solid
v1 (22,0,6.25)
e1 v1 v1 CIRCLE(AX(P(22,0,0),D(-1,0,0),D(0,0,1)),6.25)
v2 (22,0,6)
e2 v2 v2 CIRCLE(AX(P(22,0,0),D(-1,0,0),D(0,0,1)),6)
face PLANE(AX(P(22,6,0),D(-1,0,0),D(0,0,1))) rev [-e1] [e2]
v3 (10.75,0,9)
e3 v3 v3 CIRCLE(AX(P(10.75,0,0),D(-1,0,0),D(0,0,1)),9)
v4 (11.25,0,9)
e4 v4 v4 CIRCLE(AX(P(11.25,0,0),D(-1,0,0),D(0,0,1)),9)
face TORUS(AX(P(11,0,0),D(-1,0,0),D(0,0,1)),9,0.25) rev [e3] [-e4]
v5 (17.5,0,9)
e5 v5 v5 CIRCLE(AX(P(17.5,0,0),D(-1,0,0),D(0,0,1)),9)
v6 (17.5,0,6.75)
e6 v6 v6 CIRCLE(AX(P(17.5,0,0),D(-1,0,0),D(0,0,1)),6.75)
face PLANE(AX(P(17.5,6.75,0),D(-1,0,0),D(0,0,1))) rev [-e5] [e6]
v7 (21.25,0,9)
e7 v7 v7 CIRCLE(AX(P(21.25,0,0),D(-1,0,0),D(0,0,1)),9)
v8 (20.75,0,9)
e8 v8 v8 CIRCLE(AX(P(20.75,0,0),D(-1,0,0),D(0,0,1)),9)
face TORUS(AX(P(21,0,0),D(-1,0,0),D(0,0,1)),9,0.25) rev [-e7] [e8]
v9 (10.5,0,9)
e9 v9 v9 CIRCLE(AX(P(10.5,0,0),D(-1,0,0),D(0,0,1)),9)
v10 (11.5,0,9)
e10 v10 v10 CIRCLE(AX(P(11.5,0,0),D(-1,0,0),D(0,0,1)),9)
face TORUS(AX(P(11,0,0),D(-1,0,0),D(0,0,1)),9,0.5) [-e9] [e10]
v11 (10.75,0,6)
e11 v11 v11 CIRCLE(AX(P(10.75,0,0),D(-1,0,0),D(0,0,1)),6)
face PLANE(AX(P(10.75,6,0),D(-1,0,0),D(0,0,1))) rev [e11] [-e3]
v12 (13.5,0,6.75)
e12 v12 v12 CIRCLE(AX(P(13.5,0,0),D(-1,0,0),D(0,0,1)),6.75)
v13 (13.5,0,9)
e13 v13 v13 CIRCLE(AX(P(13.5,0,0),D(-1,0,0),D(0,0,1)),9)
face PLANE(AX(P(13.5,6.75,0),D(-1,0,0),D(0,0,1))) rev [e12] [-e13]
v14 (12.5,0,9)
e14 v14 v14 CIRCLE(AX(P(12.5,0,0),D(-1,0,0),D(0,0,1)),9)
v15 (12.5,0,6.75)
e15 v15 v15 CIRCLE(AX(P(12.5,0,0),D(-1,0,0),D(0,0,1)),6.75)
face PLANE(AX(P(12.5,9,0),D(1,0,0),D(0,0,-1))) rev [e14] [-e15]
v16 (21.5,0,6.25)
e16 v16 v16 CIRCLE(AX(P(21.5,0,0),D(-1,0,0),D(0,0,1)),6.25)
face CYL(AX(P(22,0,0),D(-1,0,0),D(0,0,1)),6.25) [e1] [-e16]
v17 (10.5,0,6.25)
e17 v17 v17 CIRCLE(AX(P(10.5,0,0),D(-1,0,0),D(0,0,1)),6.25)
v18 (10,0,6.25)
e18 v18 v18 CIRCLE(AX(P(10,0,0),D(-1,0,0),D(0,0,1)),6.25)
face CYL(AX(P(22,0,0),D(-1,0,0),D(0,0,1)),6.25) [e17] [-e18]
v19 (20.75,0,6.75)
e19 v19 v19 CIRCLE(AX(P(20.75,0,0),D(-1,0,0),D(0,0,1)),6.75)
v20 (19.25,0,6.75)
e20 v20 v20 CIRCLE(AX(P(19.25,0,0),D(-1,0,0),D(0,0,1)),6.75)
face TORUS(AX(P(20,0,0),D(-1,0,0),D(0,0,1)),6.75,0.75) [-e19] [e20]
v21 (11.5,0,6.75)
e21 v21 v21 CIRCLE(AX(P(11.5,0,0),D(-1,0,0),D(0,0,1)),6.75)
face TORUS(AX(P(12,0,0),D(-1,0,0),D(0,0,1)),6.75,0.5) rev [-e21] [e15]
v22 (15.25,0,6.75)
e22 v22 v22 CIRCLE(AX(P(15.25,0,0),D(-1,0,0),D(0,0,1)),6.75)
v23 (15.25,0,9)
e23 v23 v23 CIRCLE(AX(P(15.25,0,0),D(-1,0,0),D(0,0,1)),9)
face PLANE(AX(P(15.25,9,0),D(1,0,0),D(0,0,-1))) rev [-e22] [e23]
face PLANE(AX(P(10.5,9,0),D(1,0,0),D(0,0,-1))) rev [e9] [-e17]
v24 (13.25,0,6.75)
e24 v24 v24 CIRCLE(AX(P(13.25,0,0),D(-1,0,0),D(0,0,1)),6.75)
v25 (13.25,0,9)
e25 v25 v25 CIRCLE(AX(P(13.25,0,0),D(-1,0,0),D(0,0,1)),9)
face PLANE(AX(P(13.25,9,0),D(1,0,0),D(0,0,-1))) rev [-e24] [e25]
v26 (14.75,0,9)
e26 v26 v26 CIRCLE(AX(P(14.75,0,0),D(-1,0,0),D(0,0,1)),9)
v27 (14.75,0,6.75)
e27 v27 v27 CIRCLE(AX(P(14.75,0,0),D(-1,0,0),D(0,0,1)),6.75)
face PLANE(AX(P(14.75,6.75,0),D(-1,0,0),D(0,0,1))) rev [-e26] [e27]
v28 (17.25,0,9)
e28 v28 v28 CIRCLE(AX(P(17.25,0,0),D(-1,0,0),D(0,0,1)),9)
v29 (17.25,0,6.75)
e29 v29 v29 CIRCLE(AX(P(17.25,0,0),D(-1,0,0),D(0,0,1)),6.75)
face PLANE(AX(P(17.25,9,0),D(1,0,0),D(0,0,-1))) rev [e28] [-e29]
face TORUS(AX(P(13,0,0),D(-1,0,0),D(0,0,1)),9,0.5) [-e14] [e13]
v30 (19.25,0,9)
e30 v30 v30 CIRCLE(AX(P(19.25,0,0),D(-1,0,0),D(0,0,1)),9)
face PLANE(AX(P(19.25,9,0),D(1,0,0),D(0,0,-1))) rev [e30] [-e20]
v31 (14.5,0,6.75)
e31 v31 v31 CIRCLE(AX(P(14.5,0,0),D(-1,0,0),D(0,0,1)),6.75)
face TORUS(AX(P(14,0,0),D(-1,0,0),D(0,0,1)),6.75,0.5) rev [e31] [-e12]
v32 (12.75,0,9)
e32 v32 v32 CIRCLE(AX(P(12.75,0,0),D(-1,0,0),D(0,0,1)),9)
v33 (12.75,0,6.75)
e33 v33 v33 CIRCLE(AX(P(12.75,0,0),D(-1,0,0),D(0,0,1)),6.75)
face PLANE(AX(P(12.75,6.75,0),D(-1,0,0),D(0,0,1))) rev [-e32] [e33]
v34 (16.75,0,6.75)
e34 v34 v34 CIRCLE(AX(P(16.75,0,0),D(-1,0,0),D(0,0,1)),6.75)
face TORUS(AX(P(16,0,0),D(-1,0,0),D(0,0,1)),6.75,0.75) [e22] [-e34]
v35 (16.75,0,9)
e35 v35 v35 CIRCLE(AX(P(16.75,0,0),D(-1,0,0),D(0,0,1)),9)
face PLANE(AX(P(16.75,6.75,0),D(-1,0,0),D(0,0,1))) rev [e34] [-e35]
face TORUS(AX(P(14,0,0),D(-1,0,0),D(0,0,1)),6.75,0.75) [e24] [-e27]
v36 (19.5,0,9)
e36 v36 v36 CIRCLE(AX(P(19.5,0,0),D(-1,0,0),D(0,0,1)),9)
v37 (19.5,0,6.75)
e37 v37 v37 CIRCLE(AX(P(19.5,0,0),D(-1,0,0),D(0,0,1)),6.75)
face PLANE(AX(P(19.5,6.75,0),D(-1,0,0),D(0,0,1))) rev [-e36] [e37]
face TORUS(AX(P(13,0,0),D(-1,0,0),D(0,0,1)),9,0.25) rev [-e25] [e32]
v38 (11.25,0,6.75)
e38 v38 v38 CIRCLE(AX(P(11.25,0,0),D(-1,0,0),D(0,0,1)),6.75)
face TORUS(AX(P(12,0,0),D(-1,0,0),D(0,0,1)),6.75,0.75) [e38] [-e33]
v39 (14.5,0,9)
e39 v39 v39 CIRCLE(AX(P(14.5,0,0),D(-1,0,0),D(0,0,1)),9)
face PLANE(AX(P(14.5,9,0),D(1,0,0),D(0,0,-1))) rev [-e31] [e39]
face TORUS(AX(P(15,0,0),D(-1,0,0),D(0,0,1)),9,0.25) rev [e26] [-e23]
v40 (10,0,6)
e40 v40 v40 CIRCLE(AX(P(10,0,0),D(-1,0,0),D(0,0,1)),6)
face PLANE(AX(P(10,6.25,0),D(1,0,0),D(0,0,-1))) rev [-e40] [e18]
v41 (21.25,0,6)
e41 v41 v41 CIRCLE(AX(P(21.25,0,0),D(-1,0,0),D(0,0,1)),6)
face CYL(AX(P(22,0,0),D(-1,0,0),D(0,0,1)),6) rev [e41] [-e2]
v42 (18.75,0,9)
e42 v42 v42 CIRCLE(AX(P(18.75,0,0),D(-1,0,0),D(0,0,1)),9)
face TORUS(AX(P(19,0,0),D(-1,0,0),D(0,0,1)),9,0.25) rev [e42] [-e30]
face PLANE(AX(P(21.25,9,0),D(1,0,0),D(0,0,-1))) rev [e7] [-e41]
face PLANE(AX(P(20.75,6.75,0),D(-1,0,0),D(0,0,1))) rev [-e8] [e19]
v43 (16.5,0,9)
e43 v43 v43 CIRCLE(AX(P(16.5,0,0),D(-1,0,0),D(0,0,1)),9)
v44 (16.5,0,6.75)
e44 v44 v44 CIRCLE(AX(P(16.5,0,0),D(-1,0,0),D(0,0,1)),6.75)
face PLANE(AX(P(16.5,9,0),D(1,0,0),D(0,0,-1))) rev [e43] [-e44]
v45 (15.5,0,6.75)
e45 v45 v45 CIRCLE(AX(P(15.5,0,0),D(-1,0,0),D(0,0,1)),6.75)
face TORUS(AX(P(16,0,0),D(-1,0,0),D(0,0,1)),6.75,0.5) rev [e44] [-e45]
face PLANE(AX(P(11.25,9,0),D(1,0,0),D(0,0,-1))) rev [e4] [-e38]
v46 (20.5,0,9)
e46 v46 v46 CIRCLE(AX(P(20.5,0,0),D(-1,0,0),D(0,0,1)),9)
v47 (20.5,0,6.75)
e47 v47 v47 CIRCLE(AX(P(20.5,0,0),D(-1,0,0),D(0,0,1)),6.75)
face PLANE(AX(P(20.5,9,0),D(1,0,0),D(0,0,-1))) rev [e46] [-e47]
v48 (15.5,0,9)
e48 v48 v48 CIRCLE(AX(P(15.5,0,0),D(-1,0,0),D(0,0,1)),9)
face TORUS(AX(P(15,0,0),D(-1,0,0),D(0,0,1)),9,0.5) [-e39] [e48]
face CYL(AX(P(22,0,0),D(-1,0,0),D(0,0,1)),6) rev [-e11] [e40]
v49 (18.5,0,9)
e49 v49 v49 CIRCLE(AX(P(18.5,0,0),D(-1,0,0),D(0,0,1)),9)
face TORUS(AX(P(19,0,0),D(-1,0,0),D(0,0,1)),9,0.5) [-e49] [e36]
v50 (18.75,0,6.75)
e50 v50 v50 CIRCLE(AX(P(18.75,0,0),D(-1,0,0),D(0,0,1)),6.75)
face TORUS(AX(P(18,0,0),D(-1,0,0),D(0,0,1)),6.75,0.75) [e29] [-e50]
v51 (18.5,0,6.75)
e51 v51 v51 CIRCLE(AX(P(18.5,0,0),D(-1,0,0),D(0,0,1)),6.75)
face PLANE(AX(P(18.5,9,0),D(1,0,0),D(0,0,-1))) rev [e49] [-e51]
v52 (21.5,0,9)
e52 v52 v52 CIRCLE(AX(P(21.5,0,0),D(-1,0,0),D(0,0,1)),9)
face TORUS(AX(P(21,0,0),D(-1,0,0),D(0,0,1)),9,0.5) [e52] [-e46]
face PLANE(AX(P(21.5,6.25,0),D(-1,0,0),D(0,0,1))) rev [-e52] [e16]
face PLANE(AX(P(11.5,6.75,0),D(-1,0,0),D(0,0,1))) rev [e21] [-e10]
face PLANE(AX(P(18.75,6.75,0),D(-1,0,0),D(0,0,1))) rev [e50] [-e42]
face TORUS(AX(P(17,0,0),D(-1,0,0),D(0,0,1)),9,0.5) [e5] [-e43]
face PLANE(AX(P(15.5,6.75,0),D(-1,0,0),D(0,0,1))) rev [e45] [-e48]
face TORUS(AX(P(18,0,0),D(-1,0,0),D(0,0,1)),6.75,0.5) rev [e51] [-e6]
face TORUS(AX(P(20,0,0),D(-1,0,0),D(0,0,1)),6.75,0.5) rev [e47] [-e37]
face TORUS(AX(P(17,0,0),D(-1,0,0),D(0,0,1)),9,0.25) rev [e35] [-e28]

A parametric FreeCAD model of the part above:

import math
import FreeCAD as App
import Part
import Sketcher

V = App.Vector

doc = App.newDocument("Part")
body = doc.addObject("PartDesign::Body", "Body")

sketch1 = body.newObject("Sketcher::SketchObject", "Sketch")
sketch1.AttachmentSupport = (doc.getObject("XY_Plane"), [""])
sketch1.MapMode = "FlatFace"
sketch1.addGeometry(Part.LineSegment(V(10, 6.25, 0), V(10, 6, 0)), False)
sketch1.addGeometry(Part.LineSegment(V(10, 6, 0), V(10.75, 6, 0)), False)
sketch1.addGeometry(Part.LineSegment(V(10.75, 6, 0), V(10.75, 9, 0)), False)
sketch1.addGeometry(Part.ArcOfCircle(Part.Circle(V(11, 9, 0), V(0, 0, 1), 0.25), math.radians(0), math.radians(180)), False)
sketch1.addGeometry(Part.LineSegment(V(11.25, 9, 0), V(11.25, 6.75, 0)), False)
sketch1.addGeometry(Part.ArcOfCircle(Part.Circle(V(12, 6.75, 0), V(0, 0, 1), 0.75), math.radians(180), math.radians(360)), False)
sketch1.addGeometry(Part.LineSegment(V(12.75, 6.75, 0), V(12.75, 9, 0)), False)
sketch1.addGeometry(Part.ArcOfCircle(Part.Circle(V(13, 9, 0), V(0, 0, 1), 0.25), math.radians(0), math.radians(180)), False)
sketch1.addGeometry(Part.LineSegment(V(13.25, 9, 0), V(13.25, 6.75, 0)), False)
sketch1.addGeometry(Part.ArcOfCircle(Part.Circle(V(14, 6.75, 0), V(0, 0, 1), 0.75), math.radians(180), math.radians(360)), False)
sketch1.addGeometry(Part.LineSegment(V(14.75, 6.75, 0), V(14.75, 9, 0)), False)
sketch1.addGeometry(Part.ArcOfCircle(Part.Circle(V(15, 9, 0), V(0, 0, 1), 0.25), math.radians(0), math.radians(180)), False)
sketch1.addGeometry(Part.LineSegment(V(15.25, 9, 0), V(15.25, 6.75, 0)), False)
sketch1.addGeometry(Part.ArcOfCircle(Part.Circle(V(16, 6.75, 0), V(0, 0, 1), 0.75), math.radians(180), math.radians(360)), False)
sketch1.addGeometry(Part.LineSegment(V(16.75, 6.75, 0), V(16.75, 9, 0)), False)
sketch1.addGeometry(Part.ArcOfCircle(Part.Circle(V(17, 9, 0), V(0, 0, 1), 0.25), math.radians(0), math.radians(180)), False)
sketch1.addGeometry(Part.LineSegment(V(17.25, 9, 0), V(17.25, 6.75, 0)), False)
sketch1.addGeometry(Part.ArcOfCircle(Part.Circle(V(18, 6.75, 0), V(0, 0, 1), 0.75), math.radians(180), math.radians(360)), False)
sketch1.addGeometry(Part.LineSegment(V(18.75, 6.75, 0), V(18.75, 9, 0)), False)
sketch1.addGeometry(Part.ArcOfCircle(Part.Circle(V(19, 9, 0), V(0, 0, 1), 0.25), math.radians(0), math.radians(180)), False)
sketch1.addGeometry(Part.LineSegment(V(19.25, 9, 0), V(19.25, 6.75, 0)), False)
sketch1.addGeometry(Part.ArcOfCircle(Part.Circle(V(20, 6.75, 0), V(0, 0, 1), 0.75), math.radians(180), math.radians(360)), False)
sketch1.addGeometry(Part.LineSegment(V(20.75, 6.75, 0), V(20.75, 9, 0)), False)
sketch1.addGeometry(Part.ArcOfCircle(Part.Circle(V(21, 9, 0), V(0, 0, 1), 0.25), math.radians(0), math.radians(180)), False)
sketch1.addGeometry(Part.LineSegment(V(21.25, 9, 0), V(21.25, 6, 0)), False)
sketch1.addGeometry(Part.LineSegment(V(21.25, 6, 0), V(22, 6, 0)), False)
sketch1.addGeometry(Part.LineSegment(V(22, 6, 0), V(22, 6.25, 0)), False)
sketch1.addGeometry(Part.LineSegment(V(22, 6.25, 0), V(21.5, 6.25, 0)), False)
sketch1.addGeometry(Part.LineSegment(V(21.5, 6.25, 0), V(21.5, 9, 0)), False)
sketch1.addGeometry(Part.ArcOfCircle(Part.Circle(V(21, 9, 0), V(0, 0, 1), 0.5), math.radians(0), math.radians(180)), False)
sketch1.addGeometry(Part.LineSegment(V(20.5, 9, 0), V(20.5, 6.75, 0)), False)
sketch1.addGeometry(Part.ArcOfCircle(Part.Circle(V(20, 6.75, 0), V(0, 0, 1), 0.5), math.radians(180), math.radians(360)), False)
sketch1.addGeometry(Part.LineSegment(V(19.5, 6.75, 0), V(19.5, 9, 0)), False)
sketch1.addGeometry(Part.ArcOfCircle(Part.Circle(V(19, 9, 0), V(0, 0, 1), 0.5), math.radians(0), math.radians(180)), False)
sketch1.addGeometry(Part.LineSegment(V(18.5, 9, 0), V(18.5, 6.75, 0)), False)
sketch1.addGeometry(Part.ArcOfCircle(Part.Circle(V(18, 6.75, 0), V(0, 0, 1), 0.5), math.radians(180), math.radians(360)), False)
sketch1.addGeometry(Part.LineSegment(V(17.5, 6.75, 0), V(17.5, 9, 0)), False)
sketch1.addGeometry(Part.ArcOfCircle(Part.Circle(V(17, 9, 0), V(0, 0, 1), 0.5), math.radians(0), math.radians(180)), False)
sketch1.addGeometry(Part.LineSegment(V(16.5, 9, 0), V(16.5, 6.75, 0)), False)
sketch1.addGeometry(Part.ArcOfCircle(Part.Circle(V(16, 6.75, 0), V(0, 0, 1), 0.5), math.radians(180), math.radians(360)), False)
sketch1.addGeometry(Part.LineSegment(V(15.5, 6.75, 0), V(15.5, 9, 0)), False)
sketch1.addGeometry(Part.ArcOfCircle(Part.Circle(V(15, 9, 0), V(0, 0, 1), 0.5), math.radians(0), math.radians(180)), False)
sketch1.addGeometry(Part.LineSegment(V(14.5, 9, 0), V(14.5, 6.75, 0)), False)
sketch1.addGeometry(Part.ArcOfCircle(Part.Circle(V(14, 6.75, 0), V(0, 0, 1), 0.5), math.radians(180), math.radians(360)), False)
sketch1.addGeometry(Part.LineSegment(V(13.5, 6.75, 0), V(13.5, 9, 0)), False)
sketch1.addGeometry(Part.ArcOfCircle(Part.Circle(V(13, 9, 0), V(0, 0, 1), 0.5), math.radians(0), math.radians(180)), False)
sketch1.addGeometry(Part.LineSegment(V(12.5, 9, 0), V(12.5, 6.75, 0)), False)
sketch1.addGeometry(Part.ArcOfCircle(Part.Circle(V(12, 6.75, 0), V(0, 0, 1), 0.5), math.radians(180), math.radians(360)), False)
sketch1.addGeometry(Part.LineSegment(V(11.5, 6.75, 0), V(11.5, 9, 0)), False)
sketch1.addGeometry(Part.ArcOfCircle(Part.Circle(V(11, 9, 0), V(0, 0, 1), 0.5), math.radians(0), math.radians(180)), False)
sketch1.addGeometry(Part.LineSegment(V(10.5, 9, 0), V(10.5, 6.25, 0)), False)
sketch1.addGeometry(Part.LineSegment(V(10.5, 6.25, 0), V(10, 6.25, 0)), False)
sketch1.addConstraint(Sketcher.Constraint("Coincident", 0, 2, 1, 1))
sketch1.addConstraint(Sketcher.Constraint("Coincident", 1, 2, 2, 1))
sketch1.addConstraint(Sketcher.Constraint("Tangent", 2, 2, 3, 2))
sketch1.addConstraint(Sketcher.Constraint("Tangent", 3, 1, 4, 1))
sketch1.addConstraint(Sketcher.Constraint("Tangent", 4, 2, 5, 1))
sketch1.addConstraint(Sketcher.Constraint("Tangent", 5, 2, 6, 1))
sketch1.addConstraint(Sketcher.Constraint("Tangent", 6, 2, 7, 2))
sketch1.addConstraint(Sketcher.Constraint("Tangent", 7, 1, 8, 1))
sketch1.addConstraint(Sketcher.Constraint("Tangent", 8, 2, 9, 1))
sketch1.addConstraint(Sketcher.Constraint("Tangent", 9, 2, 10, 1))
sketch1.addConstraint(Sketcher.Constraint("Tangent", 10, 2, 11, 2))
sketch1.addConstraint(Sketcher.Constraint("Tangent", 11, 1, 12, 1))
sketch1.addConstraint(Sketcher.Constraint("Tangent", 12, 2, 13, 1))
sketch1.addConstraint(Sketcher.Constraint("Tangent", 13, 2, 14, 1))
sketch1.addConstraint(Sketcher.Constraint("Tangent", 14, 2, 15, 2))
sketch1.addConstraint(Sketcher.Constraint("Tangent", 15, 1, 16, 1))
sketch1.addConstraint(Sketcher.Constraint("Tangent", 16, 2, 17, 1))
sketch1.addConstraint(Sketcher.Constraint("Tangent", 17, 2, 18, 1))
sketch1.addConstraint(Sketcher.Constraint("Tangent", 18, 2, 19, 2))
sketch1.addConstraint(Sketcher.Constraint("Tangent", 19, 1, 20, 1))
sketch1.addConstraint(Sketcher.Constraint("Tangent", 20, 2, 21, 1))
sketch1.addConstraint(Sketcher.Constraint("Tangent", 21, 2, 22, 1))
sketch1.addConstraint(Sketcher.Constraint("Tangent", 22, 2, 23, 2))
sketch1.addConstraint(Sketcher.Constraint("Tangent", 23, 1, 24, 1))
sketch1.addConstraint(Sketcher.Constraint("Coincident", 24, 2, 25, 1))
sketch1.addConstraint(Sketcher.Constraint("Coincident", 25, 2, 26, 1))
sketch1.addConstraint(Sketcher.Constraint("Coincident", 26, 2, 27, 1))
sketch1.addConstraint(Sketcher.Constraint("Coincident", 27, 2, 28, 1))
sketch1.addConstraint(Sketcher.Constraint("Tangent", 28, 2, 29, 1))
sketch1.addConstraint(Sketcher.Constraint("Tangent", 29, 2, 30, 1))
sketch1.addConstraint(Sketcher.Constraint("Tangent", 30, 2, 31, 2))
sketch1.addConstraint(Sketcher.Constraint("Tangent", 31, 1, 32, 1))
sketch1.addConstraint(Sketcher.Constraint("Tangent", 32, 2, 33, 1))
sketch1.addConstraint(Sketcher.Constraint("Tangent", 33, 2, 34, 1))
sketch1.addConstraint(Sketcher.Constraint("Tangent", 34, 2, 35, 2))
sketch1.addConstraint(Sketcher.Constraint("Tangent", 35, 1, 36, 1))
sketch1.addConstraint(Sketcher.Constraint("Tangent", 36, 2, 37, 1))
sketch1.addConstraint(Sketcher.Constraint("Tangent", 37, 2, 38, 1))
sketch1.addConstraint(Sketcher.Constraint("Tangent", 38, 2, 39, 2))
sketch1.addConstraint(Sketcher.Constraint("Tangent", 39, 1, 40, 1))
sketch1.addConstraint(Sketcher.Constraint("Tangent", 40, 2, 41, 1))
sketch1.addConstraint(Sketcher.Constraint("Tangent", 41, 2, 42, 1))
sketch1.addConstraint(Sketcher.Constraint("Tangent", 42, 2, 43, 2))
sketch1.addConstraint(Sketcher.Constraint("Tangent", 43, 1, 44, 1))
sketch1.addConstraint(Sketcher.Constraint("Tangent", 44, 2, 45, 1))
sketch1.addConstraint(Sketcher.Constraint("Tangent", 45, 2, 46, 1))
sketch1.addConstraint(Sketcher.Constraint("Tangent", 46, 2, 47, 2))
sketch1.addConstraint(Sketcher.Constraint("Tangent", 47, 1, 48, 1))
sketch1.addConstraint(Sketcher.Constraint("Tangent", 48, 2, 49, 1))
sketch1.addConstraint(Sketcher.Constraint("Tangent", 49, 2, 50, 1))
sketch1.addConstraint(Sketcher.Constraint("Coincident", 50, 2, 51, 1))
sketch1.addConstraint(Sketcher.Constraint("Coincident", 51, 2, 0, 1))
sketch1.addConstraint(Sketcher.Constraint("Vertical", 0))
sketch1.addConstraint(Sketcher.Constraint("Horizontal", 1))
sketch1.addConstraint(Sketcher.Constraint("Vertical", 2))
sketch1.addConstraint(Sketcher.Constraint("Vertical", 4))
sketch1.addConstraint(Sketcher.Constraint("Vertical", 6))
sketch1.addConstraint(Sketcher.Constraint("Vertical", 8))
sketch1.addConstraint(Sketcher.Constraint("Vertical", 10))
sketch1.addConstraint(Sketcher.Constraint("Vertical", 12))
sketch1.addConstraint(Sketcher.Constraint("Vertical", 14))
sketch1.addConstraint(Sketcher.Constraint("Vertical", 16))
sketch1.addConstraint(Sketcher.Constraint("Vertical", 18))
sketch1.addConstraint(Sketcher.Constraint("Vertical", 20))
sketch1.addConstraint(Sketcher.Constraint("Vertical", 22))
sketch1.addConstraint(Sketcher.Constraint("Vertical", 24))
sketch1.addConstraint(Sketcher.Constraint("Horizontal", 25))
sketch1.addConstraint(Sketcher.Constraint("Vertical", 26))
sketch1.addConstraint(Sketcher.Constraint("Horizontal", 27))
sketch1.addConstraint(Sketcher.Constraint("Vertical", 28))
sketch1.addConstraint(Sketcher.Constraint("Vertical", 30))
sketch1.addConstraint(Sketcher.Constraint("Vertical", 32))
sketch1.addConstraint(Sketcher.Constraint("Vertical", 34))
sketch1.addConstraint(Sketcher.Constraint("Vertical", 36))
sketch1.addConstraint(Sketcher.Constraint("Vertical", 38))
sketch1.addConstraint(Sketcher.Constraint("Vertical", 40))
sketch1.addConstraint(Sketcher.Constraint("Vertical", 42))
sketch1.addConstraint(Sketcher.Constraint("Vertical", 44))
sketch1.addConstraint(Sketcher.Constraint("Vertical", 46))
sketch1.addConstraint(Sketcher.Constraint("Vertical", 48))
sketch1.addConstraint(Sketcher.Constraint("Vertical", 50))
sketch1.addConstraint(Sketcher.Constraint("Horizontal", 51))
sketch1.addConstraint(Sketcher.Constraint("Coincident", 29, 3, 23, 3))
sketch1.addConstraint(Sketcher.Constraint("Coincident", 31, 3, 21, 3))
sketch1.addConstraint(Sketcher.Constraint("Coincident", 33, 3, 19, 3))
sketch1.addConstraint(Sketcher.Constraint("Coincident", 35, 3, 17, 3))
sketch1.addConstraint(Sketcher.Constraint("Coincident", 37, 3, 15, 3))
sketch1.addConstraint(Sketcher.Constraint("Coincident", 39, 3, 13, 3))
sketch1.addConstraint(Sketcher.Constraint("Coincident", 41, 3, 11, 3))
sketch1.addConstraint(Sketcher.Constraint("Coincident", 43, 3, 9, 3))
sketch1.addConstraint(Sketcher.Constraint("Coincident", 45, 3, 7, 3))
sketch1.addConstraint(Sketcher.Constraint("Coincident", 47, 3, 5, 3))
sketch1.addConstraint(Sketcher.Constraint("Coincident", 49, 3, 3, 3))
sketch1.addConstraint(Sketcher.Constraint("Equal", 3, 7))
sketch1.addConstraint(Sketcher.Constraint("Equal", 5, 9))
sketch1.addConstraint(Sketcher.Constraint("Equal", 7, 11))
sketch1.addConstraint(Sketcher.Constraint("Equal", 9, 13))
sketch1.addConstraint(Sketcher.Constraint("Equal", 11, 15))
sketch1.addConstraint(Sketcher.Constraint("Equal", 13, 17))
sketch1.addConstraint(Sketcher.Constraint("Equal", 15, 19))
sketch1.addConstraint(Sketcher.Constraint("Equal", 17, 21))
sketch1.addConstraint(Sketcher.Constraint("Equal", 19, 23))
sketch1.addConstraint(Sketcher.Constraint("Equal", 29, 31))
sketch1.addConstraint(Sketcher.Constraint("Horizontal", 3, 3, 7, 3))
sketch1.addConstraint(Sketcher.Constraint("Horizontal", 5, 3, 9, 3))
sketch1.addConstraint(Sketcher.Constraint("Horizontal", 7, 3, 11, 3))
sketch1.addConstraint(Sketcher.Constraint("Horizontal", 9, 3, 13, 3))
sketch1.addConstraint(Sketcher.Constraint("Horizontal", 11, 3, 15, 3))
sketch1.addConstraint(Sketcher.Constraint("Horizontal", 13, 3, 17, 3))
sketch1.addConstraint(Sketcher.Constraint("Horizontal", 15, 3, 19, 3))
sketch1.addConstraint(Sketcher.Constraint("Horizontal", 17, 3, 21, 3))
sketch1.addConstraint(Sketcher.Constraint("Horizontal", 19, 3, 23, 3))
sketch1.addConstraint(Sketcher.Constraint("Horizontal", 1, 2, 24, 2))
sketch1.addConstraint(Sketcher.Constraint("Horizontal", 27, 2, 50, 2))
sketch1.addConstraint(Sketcher.Constraint("Equal", 1, 25))
sketch1.addConstraint(Sketcher.Constraint("Radius", 29, 0.5))
sketch1.addConstraint(Sketcher.Constraint("DistanceY", 2, 1, 2, 2, 3.0))
sketch1.addConstraint(Sketcher.Constraint("Radius", 3, 0.25))
sketch1.addConstraint(Sketcher.Constraint("DistanceX", 27, 2, 27, 1, 0.5))
sketch1.addConstraint(Sketcher.Constraint("DistanceX", -1, 1, 3, 3, 11.0))
sketch1.addConstraint(Sketcher.Constraint("DistanceY", -1, 1, 3, 3, 9.0))
sketch1.addConstraint(Sketcher.Constraint("DistanceY", 0, 2, 0, 1, 0.25))
sketch1.addConstraint(Sketcher.Constraint("DistanceY", 4, 2, 4, 1, 2.25))
revolution = body.newObject("PartDesign::Revolution", "Revolution")
revolution.Profile = sketch1
revolution.ReferenceAxis = (sketch1, ["H_Axis"])
revolution.Angle = 360

doc.recompute()
